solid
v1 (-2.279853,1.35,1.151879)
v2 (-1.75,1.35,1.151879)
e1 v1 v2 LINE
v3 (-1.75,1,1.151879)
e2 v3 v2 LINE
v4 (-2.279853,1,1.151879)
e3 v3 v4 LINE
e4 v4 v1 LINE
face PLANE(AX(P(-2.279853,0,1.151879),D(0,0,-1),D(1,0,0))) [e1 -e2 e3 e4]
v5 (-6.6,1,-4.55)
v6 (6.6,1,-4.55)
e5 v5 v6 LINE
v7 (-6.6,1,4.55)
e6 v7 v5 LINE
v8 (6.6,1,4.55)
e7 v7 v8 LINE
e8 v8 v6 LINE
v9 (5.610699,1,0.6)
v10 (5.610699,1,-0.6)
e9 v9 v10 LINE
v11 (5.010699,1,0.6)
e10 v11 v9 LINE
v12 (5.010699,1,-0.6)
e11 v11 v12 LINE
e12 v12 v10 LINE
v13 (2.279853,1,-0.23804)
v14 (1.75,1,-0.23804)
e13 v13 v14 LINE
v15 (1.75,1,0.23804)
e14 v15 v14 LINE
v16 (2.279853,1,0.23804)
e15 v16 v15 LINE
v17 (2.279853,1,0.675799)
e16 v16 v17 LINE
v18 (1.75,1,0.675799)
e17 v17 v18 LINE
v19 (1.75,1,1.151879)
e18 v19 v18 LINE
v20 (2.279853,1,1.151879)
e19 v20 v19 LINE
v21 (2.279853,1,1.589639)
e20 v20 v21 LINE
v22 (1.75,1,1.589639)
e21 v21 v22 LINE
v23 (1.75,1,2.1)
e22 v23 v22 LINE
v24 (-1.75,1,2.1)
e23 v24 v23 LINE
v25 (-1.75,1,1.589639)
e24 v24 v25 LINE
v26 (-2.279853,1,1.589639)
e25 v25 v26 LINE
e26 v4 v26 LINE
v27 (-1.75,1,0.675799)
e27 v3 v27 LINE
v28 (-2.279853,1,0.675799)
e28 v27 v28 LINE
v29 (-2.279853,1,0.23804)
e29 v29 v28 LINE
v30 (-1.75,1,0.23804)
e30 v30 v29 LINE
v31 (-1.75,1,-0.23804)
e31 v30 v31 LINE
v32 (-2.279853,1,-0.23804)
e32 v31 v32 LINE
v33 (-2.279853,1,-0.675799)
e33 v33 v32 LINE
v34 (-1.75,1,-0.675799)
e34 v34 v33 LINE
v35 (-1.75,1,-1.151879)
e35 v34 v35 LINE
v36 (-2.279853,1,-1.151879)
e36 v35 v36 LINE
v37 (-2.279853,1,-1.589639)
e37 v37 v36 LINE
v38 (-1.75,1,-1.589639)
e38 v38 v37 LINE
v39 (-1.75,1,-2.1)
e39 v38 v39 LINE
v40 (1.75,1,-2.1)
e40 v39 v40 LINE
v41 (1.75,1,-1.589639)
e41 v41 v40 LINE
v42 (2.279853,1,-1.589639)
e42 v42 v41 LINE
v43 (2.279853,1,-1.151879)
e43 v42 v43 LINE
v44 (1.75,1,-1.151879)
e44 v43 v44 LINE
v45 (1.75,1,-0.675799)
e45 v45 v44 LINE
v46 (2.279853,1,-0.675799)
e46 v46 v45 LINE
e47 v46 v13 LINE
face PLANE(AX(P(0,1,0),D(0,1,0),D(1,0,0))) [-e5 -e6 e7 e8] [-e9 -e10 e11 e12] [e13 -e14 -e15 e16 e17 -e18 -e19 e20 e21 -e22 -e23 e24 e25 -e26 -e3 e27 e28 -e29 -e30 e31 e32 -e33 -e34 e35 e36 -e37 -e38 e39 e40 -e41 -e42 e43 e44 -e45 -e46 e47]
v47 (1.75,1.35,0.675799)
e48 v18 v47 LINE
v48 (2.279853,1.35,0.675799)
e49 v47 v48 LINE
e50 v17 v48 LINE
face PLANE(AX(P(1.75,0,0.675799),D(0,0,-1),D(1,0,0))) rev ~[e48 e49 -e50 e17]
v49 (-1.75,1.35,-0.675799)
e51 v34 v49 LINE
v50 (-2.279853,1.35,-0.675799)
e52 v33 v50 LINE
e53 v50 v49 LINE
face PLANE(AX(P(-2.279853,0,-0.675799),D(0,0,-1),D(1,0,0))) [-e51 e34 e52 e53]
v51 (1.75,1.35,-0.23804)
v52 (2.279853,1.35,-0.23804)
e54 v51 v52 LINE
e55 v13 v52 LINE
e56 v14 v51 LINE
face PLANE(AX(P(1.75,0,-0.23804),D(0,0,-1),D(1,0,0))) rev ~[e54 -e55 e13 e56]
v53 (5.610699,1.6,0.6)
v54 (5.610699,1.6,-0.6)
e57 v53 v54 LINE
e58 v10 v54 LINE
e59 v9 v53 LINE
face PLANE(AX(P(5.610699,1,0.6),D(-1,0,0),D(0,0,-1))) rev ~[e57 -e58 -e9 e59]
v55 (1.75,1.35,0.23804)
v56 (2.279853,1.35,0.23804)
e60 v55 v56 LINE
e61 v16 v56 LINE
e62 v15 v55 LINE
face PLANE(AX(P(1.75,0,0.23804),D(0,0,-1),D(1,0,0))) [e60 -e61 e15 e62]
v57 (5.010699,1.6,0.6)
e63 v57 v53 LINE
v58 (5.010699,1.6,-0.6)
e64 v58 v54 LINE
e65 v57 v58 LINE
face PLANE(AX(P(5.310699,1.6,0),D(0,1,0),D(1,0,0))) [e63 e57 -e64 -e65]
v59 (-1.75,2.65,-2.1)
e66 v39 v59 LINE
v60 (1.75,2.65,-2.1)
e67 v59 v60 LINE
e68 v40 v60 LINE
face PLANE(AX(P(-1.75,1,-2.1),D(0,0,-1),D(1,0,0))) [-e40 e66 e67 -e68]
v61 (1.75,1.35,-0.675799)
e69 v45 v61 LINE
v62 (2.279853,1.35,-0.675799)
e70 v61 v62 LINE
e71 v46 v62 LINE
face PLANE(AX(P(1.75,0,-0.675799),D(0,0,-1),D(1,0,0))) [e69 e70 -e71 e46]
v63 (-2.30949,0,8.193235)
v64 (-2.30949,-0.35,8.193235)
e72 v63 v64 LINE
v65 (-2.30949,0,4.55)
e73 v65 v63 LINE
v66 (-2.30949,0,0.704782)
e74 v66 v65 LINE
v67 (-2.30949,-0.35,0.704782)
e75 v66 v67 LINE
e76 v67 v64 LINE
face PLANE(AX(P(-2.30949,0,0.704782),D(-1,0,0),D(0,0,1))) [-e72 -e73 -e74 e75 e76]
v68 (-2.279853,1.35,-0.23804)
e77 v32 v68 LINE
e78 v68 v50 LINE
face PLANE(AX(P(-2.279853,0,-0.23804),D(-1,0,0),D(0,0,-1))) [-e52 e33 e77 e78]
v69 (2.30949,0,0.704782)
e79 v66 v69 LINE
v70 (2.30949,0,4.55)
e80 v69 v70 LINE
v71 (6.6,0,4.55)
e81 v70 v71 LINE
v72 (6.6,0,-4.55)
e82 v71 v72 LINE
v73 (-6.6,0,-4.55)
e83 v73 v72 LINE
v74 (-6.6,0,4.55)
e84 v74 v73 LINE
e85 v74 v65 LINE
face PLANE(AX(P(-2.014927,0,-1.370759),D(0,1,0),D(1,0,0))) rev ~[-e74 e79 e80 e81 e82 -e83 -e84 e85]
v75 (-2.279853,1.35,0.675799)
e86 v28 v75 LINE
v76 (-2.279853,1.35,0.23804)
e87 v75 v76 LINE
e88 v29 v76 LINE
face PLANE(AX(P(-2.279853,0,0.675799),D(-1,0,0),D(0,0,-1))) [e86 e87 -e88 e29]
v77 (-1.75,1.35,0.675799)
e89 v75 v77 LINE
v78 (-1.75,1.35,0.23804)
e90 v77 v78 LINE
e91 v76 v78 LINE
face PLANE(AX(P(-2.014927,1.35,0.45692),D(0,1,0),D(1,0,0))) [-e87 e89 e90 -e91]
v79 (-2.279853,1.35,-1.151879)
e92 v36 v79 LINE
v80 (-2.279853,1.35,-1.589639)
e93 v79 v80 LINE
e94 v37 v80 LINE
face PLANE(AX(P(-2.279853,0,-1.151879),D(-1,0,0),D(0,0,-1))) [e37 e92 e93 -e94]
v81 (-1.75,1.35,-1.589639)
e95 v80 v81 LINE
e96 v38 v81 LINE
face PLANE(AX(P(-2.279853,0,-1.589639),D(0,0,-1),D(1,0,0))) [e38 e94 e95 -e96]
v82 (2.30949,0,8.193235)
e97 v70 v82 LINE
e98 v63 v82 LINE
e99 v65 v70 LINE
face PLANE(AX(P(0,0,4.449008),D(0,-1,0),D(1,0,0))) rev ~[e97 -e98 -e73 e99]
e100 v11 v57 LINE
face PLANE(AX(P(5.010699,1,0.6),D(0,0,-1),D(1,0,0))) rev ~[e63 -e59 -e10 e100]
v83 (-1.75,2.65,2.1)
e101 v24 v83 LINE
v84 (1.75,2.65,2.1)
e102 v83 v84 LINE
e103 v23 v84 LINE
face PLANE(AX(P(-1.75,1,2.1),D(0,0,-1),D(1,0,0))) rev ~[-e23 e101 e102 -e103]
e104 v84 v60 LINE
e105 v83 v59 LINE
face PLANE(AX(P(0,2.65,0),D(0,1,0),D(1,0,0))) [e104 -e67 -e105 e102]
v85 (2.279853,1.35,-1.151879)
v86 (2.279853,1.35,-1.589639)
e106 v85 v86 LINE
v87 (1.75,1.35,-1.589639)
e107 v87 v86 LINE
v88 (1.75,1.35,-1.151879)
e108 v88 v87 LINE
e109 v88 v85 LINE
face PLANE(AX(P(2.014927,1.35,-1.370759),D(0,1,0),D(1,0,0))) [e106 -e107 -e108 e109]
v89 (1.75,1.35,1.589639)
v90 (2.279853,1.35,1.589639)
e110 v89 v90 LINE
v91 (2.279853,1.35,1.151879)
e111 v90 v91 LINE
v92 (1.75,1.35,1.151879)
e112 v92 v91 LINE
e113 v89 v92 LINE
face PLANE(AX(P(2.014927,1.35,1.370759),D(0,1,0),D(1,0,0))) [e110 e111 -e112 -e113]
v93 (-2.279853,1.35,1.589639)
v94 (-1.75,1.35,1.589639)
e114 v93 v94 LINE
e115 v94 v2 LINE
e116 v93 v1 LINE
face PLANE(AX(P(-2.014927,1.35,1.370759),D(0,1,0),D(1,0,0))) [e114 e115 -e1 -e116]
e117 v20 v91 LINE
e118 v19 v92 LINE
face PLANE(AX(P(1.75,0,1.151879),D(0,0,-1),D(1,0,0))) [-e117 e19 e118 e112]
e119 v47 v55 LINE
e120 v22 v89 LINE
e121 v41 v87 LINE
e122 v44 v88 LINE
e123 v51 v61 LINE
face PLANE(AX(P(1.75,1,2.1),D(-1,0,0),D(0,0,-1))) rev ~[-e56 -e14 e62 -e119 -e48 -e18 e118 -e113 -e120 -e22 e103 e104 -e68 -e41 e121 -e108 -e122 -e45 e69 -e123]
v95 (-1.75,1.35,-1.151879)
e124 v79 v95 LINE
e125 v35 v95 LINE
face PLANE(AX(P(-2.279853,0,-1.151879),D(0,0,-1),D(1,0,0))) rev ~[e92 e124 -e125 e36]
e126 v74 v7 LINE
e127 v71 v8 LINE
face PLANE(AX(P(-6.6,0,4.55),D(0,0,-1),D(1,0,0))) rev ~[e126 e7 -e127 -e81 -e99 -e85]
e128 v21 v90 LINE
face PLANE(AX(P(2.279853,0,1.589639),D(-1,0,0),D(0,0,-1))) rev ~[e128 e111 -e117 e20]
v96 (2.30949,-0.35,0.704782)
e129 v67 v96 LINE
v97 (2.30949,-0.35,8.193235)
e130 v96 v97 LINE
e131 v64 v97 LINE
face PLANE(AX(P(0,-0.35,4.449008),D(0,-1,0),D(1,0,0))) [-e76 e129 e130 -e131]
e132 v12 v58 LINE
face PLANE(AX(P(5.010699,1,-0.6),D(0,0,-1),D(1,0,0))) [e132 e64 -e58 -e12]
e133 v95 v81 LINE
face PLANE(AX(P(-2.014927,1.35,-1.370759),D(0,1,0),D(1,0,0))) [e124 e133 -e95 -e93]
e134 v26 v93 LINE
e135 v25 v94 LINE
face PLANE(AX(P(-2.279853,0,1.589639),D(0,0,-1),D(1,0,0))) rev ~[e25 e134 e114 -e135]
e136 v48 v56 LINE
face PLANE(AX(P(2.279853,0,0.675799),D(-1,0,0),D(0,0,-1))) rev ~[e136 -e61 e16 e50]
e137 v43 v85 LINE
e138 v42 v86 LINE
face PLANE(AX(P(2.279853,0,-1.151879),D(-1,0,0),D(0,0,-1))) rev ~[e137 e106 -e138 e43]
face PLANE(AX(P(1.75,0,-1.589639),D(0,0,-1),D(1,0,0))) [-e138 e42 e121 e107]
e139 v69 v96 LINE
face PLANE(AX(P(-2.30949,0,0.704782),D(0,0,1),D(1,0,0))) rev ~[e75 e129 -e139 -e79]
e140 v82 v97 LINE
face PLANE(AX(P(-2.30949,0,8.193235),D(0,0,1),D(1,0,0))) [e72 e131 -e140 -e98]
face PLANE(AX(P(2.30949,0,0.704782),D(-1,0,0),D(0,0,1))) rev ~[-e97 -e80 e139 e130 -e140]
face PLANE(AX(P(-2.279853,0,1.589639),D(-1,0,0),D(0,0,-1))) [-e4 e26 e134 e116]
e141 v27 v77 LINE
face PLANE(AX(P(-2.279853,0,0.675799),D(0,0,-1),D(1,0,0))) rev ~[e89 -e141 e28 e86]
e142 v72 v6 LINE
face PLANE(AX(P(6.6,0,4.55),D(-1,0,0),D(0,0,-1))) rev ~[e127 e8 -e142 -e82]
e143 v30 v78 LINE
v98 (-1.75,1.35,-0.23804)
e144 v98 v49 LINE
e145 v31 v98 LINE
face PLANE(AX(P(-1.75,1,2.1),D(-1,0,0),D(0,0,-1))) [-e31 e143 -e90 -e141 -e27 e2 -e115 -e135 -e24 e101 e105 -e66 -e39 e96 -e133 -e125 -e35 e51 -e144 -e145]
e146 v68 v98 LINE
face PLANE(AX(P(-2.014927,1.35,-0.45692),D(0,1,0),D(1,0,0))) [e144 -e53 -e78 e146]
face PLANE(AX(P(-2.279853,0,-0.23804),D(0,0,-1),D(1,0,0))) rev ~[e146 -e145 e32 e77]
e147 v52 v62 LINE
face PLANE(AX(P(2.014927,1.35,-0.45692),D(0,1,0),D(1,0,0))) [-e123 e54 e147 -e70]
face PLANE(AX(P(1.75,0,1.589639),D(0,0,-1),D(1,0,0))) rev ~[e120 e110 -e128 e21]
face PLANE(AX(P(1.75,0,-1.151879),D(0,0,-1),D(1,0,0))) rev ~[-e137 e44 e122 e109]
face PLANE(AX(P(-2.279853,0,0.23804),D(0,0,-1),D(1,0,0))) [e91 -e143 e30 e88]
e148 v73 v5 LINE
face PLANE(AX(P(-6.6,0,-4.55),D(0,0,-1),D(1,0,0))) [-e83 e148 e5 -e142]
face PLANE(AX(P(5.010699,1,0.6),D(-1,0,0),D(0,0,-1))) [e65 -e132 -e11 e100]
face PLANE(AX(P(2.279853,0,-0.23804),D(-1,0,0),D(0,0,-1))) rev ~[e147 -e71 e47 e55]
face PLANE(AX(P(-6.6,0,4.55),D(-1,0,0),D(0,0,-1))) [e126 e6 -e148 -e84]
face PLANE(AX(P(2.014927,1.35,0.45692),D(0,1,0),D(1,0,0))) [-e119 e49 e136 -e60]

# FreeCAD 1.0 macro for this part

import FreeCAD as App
import Part
import Sketcher
Q = App.Units.Quantity


def add_polygon(sketch, points):
    """Adds a closed chain of lines whose ends are joined by coincident constraints."""
    first, n = sketch.GeometryCount, len(points)
    for a, b in zip(points, points[1:] + points[:1]):
        sketch.addGeometry(Part.LineSegment(App.Vector(*a, 0), App.Vector(*b, 0)), False)
    for i in range(n):
        sketch.addConstraint(Sketcher.Constraint("Coincident", first + i, 2, first + (i + 1) % n, 1))

doc = App.newDocument("Part")
body = doc.addObject("PartDesign::Body", "Body")

sketch1 = body.newObject("Sketcher::SketchObject", "Sketch")
sketch1.AttachmentSupport = (doc.getObject("XZ_Plane"), [""])
sketch1.MapMode = "FlatFace"
add_polygon(sketch1, [(-6.6, -4.55), (-6.6, 4.55), (6.6, 4.55), (6.6, -4.55)])
sketch1.addConstraint([
    Sketcher.Constraint("Vertical", 0),
    Sketcher.Constraint("Horizontal", 1),
    Sketcher.Constraint("Vertical", 2),
    Sketcher.Constraint("Horizontal", 3),
    Sketcher.Constraint("Symmetric", 0, 2, 2, 2, -1, 1),
    Sketcher.Constraint("DistanceX", 1, 1, 1, 2, Q("13.2 mm")),
    Sketcher.Constraint("DistanceY", 0, 1, 0, 2, Q("9.1 mm")),
])
pad1 = body.newObject("PartDesign::Pad", "Pad")
pad1.Profile = sketch1
pad1.Length = 1
pad1.Reversed = True

sketch2 = body.newObject("Sketcher::SketchObject", "Sketch001")
sketch2.AttachmentSupport = (doc.getObject("XZ_Plane"), [""])
sketch2.MapMode = "FlatFace"
sketch2.AttachmentOffset = App.Placement(App.Vector(0, 0, -1), App.Rotation())
add_polygon(sketch2, [(-1.75, -2.1), (-1.75, 2.1), (1.75, 2.1), (1.75, -2.1)])
sketch2.addConstraint([
    Sketcher.Constraint("Vertical", 0),
    Sketcher.Constraint("Horizontal", 1),
    Sketcher.Constraint("Vertical", 2),
    Sketcher.Constraint("Horizontal", 3),
    Sketcher.Constraint("Symmetric", 0, 2, 2, 2, -1, 1),
    Sketcher.Constraint("DistanceX", 1, 1, 1, 2, Q("3.5 mm")),
    Sketcher.Constraint("DistanceY", 0, 1, 0, 2, Q("4.2 mm")),
])
pad2 = body.newObject("PartDesign::Pad", "Pad001")
pad2.Profile = sketch2
pad2.Length = 1.65
pad2.Reversed = True

sketch3 = body.newObject("Sketcher::SketchObject", "Sketch002")
sketch3.AttachmentSupport = (doc.getObject("XZ_Plane"), [""])
sketch3.MapMode = "FlatFace"
sketch3.AttachmentOffset = App.Placement(App.Vector(0, 0, -1), App.Rotation())
add_polygon(sketch3, [(5.010699, -0.6), (5.010699, 0.6), (5.610699, 0.6), (5.610699, -0.6)])
sketch3.addConstraint([
    Sketcher.Constraint("Vertical", 0),
    Sketcher.Constraint("Horizontal", 1),
    Sketcher.Constraint("Vertical", 2),
    Sketcher.Constraint("Horizontal", 3),
    Sketcher.Constraint("DistanceX", 1, 1, 1, 2, Q("0.6 mm")),
    Sketcher.Constraint("DistanceY", 0, 1, 0, 2, Q("1.2 mm")),
    Sketcher.Constraint("DistanceY", -1, 1, 0, 2, Q("0.6 mm")),
    Sketcher.Constraint("DistanceX", -1, 1, 0, 2, Q("5.010699 mm")),
])
pad3 = body.newObject("PartDesign::Pad", "Pad002")
pad3.Profile = sketch3
pad3.Length = 0.6
pad3.Reversed = True

sketch4 = body.newObject("Sketcher::SketchObject", "Sketch003")
sketch4.AttachmentSupport = (doc.getObject("XZ_Plane"), [""])
sketch4.MapMode = "FlatFace"
add_polygon(sketch4, [(-2.30949, 8.193235), (-2.30949, 0.704782), (2.30949, 0.704782), (2.30949, 8.193235)])
sketch4.addConstraint([
    Sketcher.Constraint("Vertical", 0),
    Sketcher.Constraint("Horizontal", 1),
    Sketcher.Constraint("Vertical", 2),
    Sketcher.Constraint("Horizontal", 3),
    Sketcher.Constraint("DistanceX", 1, 1, 1, 2, Q("4.61898 mm")),
    Sketcher.Constraint("DistanceY", 0, 2, 0, 1, Q("7.488452 mm")),
    Sketcher.Constraint("DistanceX", 0, 2, -1, 1, Q("2.30949 mm")),
    Sketcher.Constraint("DistanceY", -1, 1, 0, 2, Q("0.704782 mm")),
])
pad4 = body.newObject("PartDesign::Pad", "Pad003")
pad4.Profile = sketch4
pad4.Length = 0.35

sketch5 = body.newObject("Sketcher::SketchObject", "Sketch004")
sketch5.AttachmentSupport = (doc.getObject("XZ_Plane"), [""])
sketch5.MapMode = "FlatFace"
add_polygon(sketch5, [(-2.279853, -1.589639), (-2.279853, -1.151879), (-1.75, -1.151879), (-1.75, -1.589639)])
add_polygon(sketch5, [(-2.279853, -0.675799), (-2.279853, -0.23804), (-1.75, -0.23804), (-1.75, -0.675799)])
add_polygon(sketch5, [(1.75, -0.675799), (1.75, -0.23804), (2.279853, -0.23804), (2.279853, -0.675799)])
add_polygon(sketch5, [(1.75, -1.589639), (1.75, -1.151879), (2.279853, -1.151879), (2.279853, -1.589639)])
add_polygon(sketch5, [(1.75, 1.151879), (1.75, 1.589639), (2.279853, 1.589639), (2.279853, 1.151879)])
add_polygon(sketch5, [(1.75, 0.23804), (1.75, 0.675799), (2.279853, 0.675799), (2.279853, 0.23804)])
add_polygon(sketch5, [(-2.279853, 0.23804), (-2.279853, 0.675799), (-1.75, 0.675799), (-1.75, 0.23804)])
add_polygon(sketch5, [(-2.279853, 1.151879), (-2.279853, 1.589639), (-1.75, 1.589639), (-1.75, 1.151879)])
sketch5.addConstraint([
    Sketcher.Constraint("Vertical", 0),
    Sketcher.Constraint("Horizontal", 1),
    Sketcher.Constraint("Vertical", 2),
    Sketcher.Constraint("Horizontal", 3),
    Sketcher.Constraint("Vertical", 4),
    Sketcher.Constraint("Horizontal", 5),
    Sketcher.Constraint("Vertical", 6),
    Sketcher.Constraint("Horizontal", 7),
    Sketcher.Constraint("Vertical", 8),
    Sketcher.Constraint("Horizontal", 9),
    Sketcher.Constraint("Vertical", 10),
    Sketcher.Constraint("Horizontal", 11),
    Sketcher.Constraint("Vertical", 12),
    Sketcher.Constraint("Horizontal", 13),
    Sketcher.Constraint("Vertical", 14),
    Sketcher.Constraint("Horizontal", 15),
    Sketcher.Constraint("Vertical", 16),
    Sketcher.Constraint("Horizontal", 17),
    Sketcher.Constraint("Vertical", 18),
    Sketcher.Constraint("Horizontal", 19),
    Sketcher.Constraint("Vertical", 20),
    Sketcher.Constraint("Horizontal", 21),
    Sketcher.Constraint("Vertical", 22),
    Sketcher.Constraint("Horizontal", 23),
    Sketcher.Constraint("Vertical", 24),
    Sketcher.Constraint("Horizontal", 25),
    Sketcher.Constraint("Vertical", 26),
    Sketcher.Constraint("Horizontal", 27),
    Sketcher.Constraint("Vertical", 28),
    Sketcher.Constraint("Horizontal", 29),
    Sketcher.Constraint("Vertical", 30),
    Sketcher.Constraint("Horizontal", 31),
    Sketcher.Constraint("Symmetric", 2, 2, 16, 2, -1, 1),
    Sketcher.Constraint("Symmetric", 0, 2, 18, 2, -1, 1),
    Sketcher.Constraint("Symmetric", 6, 2, 20, 2, -1, 1),
    Sketcher.Constraint("Symmetric", 4, 2, 22, 2, -1, 1),
    Sketcher.Constraint("Symmetric", 10, 2, 24, 2, -1, 1),
    Sketcher.Constraint("Symmetric", 8, 2, 26, 2, -1, 1),
    Sketcher.Constraint("Symmetric", 14, 2, 28, 2, -1, 1),
    Sketcher.Constraint("Symmetric", 12, 2, 30, 2, -1, 1),
    Sketcher.Constraint("Symmetric", 5, 2, 8, 2, -2),
    Sketcher.Constraint("Symmetric", 7, 2, 10, 2, -2),
    Sketcher.Constraint("Symmetric", 1, 2, 12, 2, -2),
    Sketcher.Constraint("Symmetric", 3, 2, 14, 2, -2),
    Sketcher.Constraint("Vertical", 3, 2, 4, 2),
    Sketcher.Constraint("Vertical", 2, 2, 5, 2),
    Sketcher.Constraint("Equal", 2, 4),
    Sketcher.Constraint("DistanceX", 5, 2, 8, 2, Q("3.5 mm")),
    Sketcher.Constraint("DistanceY", 0, 1, 0, 2, Q("0.43776 mm")),
    Sketcher.Constraint("DistanceY", 6, 2, -1, 1, Q("0.675799 mm")),
    Sketcher.Constraint("DistanceY", 3, 2, 4, 2, Q("1.351599 mm")),
    Sketcher.Constraint("DistanceX", 1, 1, 1, 2, Q("0.529853 mm")),
])
pad5 = body.newObject("PartDesign::Pad", "Pad004")
pad5.Profile = sketch5
pad5.Length = 1.35
pad5.Reversed = True

doc.recompute()
